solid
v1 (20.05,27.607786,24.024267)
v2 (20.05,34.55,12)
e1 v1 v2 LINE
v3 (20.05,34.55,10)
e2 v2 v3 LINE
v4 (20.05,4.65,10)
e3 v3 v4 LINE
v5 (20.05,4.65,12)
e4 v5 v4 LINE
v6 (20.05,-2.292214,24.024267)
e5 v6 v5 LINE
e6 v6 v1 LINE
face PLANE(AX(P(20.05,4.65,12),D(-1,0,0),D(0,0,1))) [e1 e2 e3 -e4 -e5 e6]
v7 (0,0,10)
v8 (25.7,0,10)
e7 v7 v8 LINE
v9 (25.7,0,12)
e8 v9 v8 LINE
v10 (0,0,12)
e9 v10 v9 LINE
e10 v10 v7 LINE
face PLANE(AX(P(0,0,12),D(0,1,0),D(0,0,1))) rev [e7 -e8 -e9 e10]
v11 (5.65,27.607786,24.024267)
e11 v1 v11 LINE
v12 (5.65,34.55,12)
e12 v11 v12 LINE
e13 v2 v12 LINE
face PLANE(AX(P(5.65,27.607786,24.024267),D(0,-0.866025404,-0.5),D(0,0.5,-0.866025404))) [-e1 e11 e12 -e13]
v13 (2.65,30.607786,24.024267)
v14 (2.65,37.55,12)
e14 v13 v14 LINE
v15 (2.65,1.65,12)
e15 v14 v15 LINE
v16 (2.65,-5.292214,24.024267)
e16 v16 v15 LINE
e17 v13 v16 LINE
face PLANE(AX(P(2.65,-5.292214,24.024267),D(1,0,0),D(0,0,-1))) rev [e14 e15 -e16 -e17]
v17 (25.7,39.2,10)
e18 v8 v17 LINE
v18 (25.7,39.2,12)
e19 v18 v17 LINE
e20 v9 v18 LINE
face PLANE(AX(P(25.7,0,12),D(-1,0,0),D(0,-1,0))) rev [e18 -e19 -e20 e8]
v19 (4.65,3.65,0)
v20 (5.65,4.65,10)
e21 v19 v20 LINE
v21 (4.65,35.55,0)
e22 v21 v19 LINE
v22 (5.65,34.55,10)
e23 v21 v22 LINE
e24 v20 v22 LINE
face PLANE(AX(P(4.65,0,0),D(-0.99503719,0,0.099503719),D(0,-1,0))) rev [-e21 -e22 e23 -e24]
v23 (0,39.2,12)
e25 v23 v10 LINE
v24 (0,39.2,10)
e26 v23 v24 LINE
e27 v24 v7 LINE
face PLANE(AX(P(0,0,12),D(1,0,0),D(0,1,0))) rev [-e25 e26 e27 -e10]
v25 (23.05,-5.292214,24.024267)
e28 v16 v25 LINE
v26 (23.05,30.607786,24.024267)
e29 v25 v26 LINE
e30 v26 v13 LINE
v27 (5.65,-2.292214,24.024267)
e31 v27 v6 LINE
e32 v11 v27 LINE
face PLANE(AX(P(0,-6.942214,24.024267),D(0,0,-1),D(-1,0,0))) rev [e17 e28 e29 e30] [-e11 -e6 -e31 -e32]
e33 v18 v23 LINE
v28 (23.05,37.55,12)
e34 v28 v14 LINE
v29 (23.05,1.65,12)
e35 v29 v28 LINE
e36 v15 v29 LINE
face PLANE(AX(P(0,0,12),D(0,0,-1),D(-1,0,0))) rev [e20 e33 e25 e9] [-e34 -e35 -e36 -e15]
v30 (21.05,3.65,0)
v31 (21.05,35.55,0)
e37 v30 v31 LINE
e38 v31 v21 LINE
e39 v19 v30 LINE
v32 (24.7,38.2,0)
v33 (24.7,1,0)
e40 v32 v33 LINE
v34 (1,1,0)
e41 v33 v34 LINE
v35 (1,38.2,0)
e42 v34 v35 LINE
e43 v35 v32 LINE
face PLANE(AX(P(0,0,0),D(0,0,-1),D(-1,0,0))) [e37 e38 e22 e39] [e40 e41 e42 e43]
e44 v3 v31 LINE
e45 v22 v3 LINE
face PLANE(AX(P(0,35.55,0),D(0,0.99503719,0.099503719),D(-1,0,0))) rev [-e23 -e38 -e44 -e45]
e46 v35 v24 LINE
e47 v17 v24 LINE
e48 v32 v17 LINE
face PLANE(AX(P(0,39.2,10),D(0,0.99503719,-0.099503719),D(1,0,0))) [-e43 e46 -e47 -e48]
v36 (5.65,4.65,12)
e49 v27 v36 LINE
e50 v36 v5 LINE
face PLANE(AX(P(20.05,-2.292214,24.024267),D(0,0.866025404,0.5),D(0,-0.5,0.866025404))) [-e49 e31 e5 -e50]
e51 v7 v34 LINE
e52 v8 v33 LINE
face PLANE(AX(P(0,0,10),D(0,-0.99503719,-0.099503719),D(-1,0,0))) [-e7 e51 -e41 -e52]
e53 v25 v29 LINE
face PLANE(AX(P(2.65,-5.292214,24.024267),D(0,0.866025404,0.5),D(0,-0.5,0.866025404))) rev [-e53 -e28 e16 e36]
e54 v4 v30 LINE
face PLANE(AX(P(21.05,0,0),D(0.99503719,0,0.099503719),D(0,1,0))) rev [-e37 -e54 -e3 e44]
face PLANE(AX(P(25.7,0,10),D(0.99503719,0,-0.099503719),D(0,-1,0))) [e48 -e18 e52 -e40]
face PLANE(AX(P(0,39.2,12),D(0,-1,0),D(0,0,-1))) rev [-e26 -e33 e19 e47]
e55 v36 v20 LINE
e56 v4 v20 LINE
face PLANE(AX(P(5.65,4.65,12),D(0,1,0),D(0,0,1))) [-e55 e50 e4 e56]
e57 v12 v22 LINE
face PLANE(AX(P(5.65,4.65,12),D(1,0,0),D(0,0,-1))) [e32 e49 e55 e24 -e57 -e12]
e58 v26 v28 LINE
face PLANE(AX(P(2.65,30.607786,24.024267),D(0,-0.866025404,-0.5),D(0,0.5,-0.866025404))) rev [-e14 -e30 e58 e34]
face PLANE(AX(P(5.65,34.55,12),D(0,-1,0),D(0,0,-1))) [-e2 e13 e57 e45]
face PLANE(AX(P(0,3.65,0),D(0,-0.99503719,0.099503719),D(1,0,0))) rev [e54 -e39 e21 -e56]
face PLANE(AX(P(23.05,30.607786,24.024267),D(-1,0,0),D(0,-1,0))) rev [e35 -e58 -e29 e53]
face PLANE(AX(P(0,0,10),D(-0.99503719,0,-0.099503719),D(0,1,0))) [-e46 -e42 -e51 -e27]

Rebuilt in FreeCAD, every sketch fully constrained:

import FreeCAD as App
import Part
import Sketcher

V = App.Vector


def edges_at(feature, points):
    """Names of the edges that pass closest to the given points."""
    edges = feature.Shape.Edges
    near = lambda p: min(range(len(edges)), key=lambda i: edges[i].distToShape(Part.Vertex(*p))[0])
    return sorted({f"Edge{near(p) + 1}" for p in points})

doc = App.newDocument("Part")
body = doc.addObject("PartDesign::Body", "Body")

sketch1 = doc.addObject("Sketcher::SketchObject", "Sketch")
body.addObject(sketch1)
sketch1.AttachmentSupport = (doc.XY_Plane, [""])
sketch1.MapMode = "FlatFace"
sketch1.addGeometry([
    Part.LineSegment(V(0, 39, 0), V(0, 0, 0)),
    Part.LineSegment(V(0, 0, 0), V(26, 0, 0)),
    Part.LineSegment(V(26, 0, 0), V(26, 39, 0)),
    Part.LineSegment(V(26, 39, 0), V(0, 39, 0)),
    Part.LineSegment(V(20, 5, 0), V(6, 5, 0)),
    Part.LineSegment(V(6, 5, 0), V(6, 35, 0)),
    Part.LineSegment(V(6, 35, 0), V(20, 35, 0)),
    Part.LineSegment(V(20, 35, 0), V(20, 5, 0)),
], False)
sketch1.addConstraint([
    Sketcher.Constraint("Coincident", 0, 2, 1, 1),
    Sketcher.Constraint("Coincident", 1, 2, 2, 1),
    Sketcher.Constraint("Coincident", 2, 2, 3, 1),
    Sketcher.Constraint("Coincident", 3, 2, 0, 1),
    Sketcher.Constraint("Coincident", 4, 2, 5, 1),
    Sketcher.Constraint("Coincident", 5, 2, 6, 1),
    Sketcher.Constraint("Coincident", 6, 2, 7, 1),
    Sketcher.Constraint("Coincident", 7, 2, 4, 1),
    Sketcher.Constraint("Vertical", 0),
    Sketcher.Constraint("Horizontal", 1),
    Sketcher.Constraint("Vertical", 2),
    Sketcher.Constraint("Horizontal", 3),
    Sketcher.Constraint("Horizontal", 4),
    Sketcher.Constraint("Vertical", 5),
    Sketcher.Constraint("Horizontal", 6),
    Sketcher.Constraint("Vertical", 7),
    Sketcher.Constraint("Coincident", 0, 2, -1, 1),
    Sketcher.Constraint("DistanceX", 1, 1, 1, 2, 25.7),
    Sketcher.Constraint("DistanceX", 4, 2, 4, 1, 14.4),
    Sketcher.Constraint("DistanceY", 0, 2, 0, 1, 39.2),
    Sketcher.Constraint("DistanceY", 5, 1, 5, 2, 29.9),
    Sketcher.Constraint("DistanceX", -1, 1, 4, 2, 5.65),
    Sketcher.Constraint("DistanceY", -1, 1, 4, 2, 4.65),
])
pad1 = doc.addObject("PartDesign::Pad", "Pad")
body.addObject(pad1)
pad1.Profile = sketch1
pad1.Length = 12
doc.recompute()

chamfer = doc.addObject("PartDesign::Chamfer", "Chamfer")
body.addObject(chamfer)
chamfer.Base = (pad1, edges_at(pad1, [
    (5.65, 19.6, 0),
    (12.85, 4.65, 0),
    (20.05, 19.6, 0),
    (12.85, 34.55, 0),
    (12.85, 39.2, 0),
    (25.7, 19.6, 0),
    (12.85, 0, 0),
    (0, 19.6, 0),
]))
chamfer.ChamferType = "Two distances"
chamfer.Size = 1
chamfer.Size2 = 10
chamfer.FlipDirection = True

sketch2 = doc.addObject("Sketcher::SketchObject", "Sketch001")
body.addObject(sketch2)
sketch2.AttachmentSupport = (doc.XY_Plane, [""])
sketch2.MapMode = "FlatFace"
sketch2.AttachmentOffset = App.Placement(V(0, 0, 12), App.Rotation())
sketch2.addGeometry([
    Part.LineSegment(V(3, 38, 0), V(3, 2, 0)),
    Part.LineSegment(V(3, 2, 0), V(23, 2, 0)),
    Part.LineSegment(V(23, 2, 0), V(23, 38, 0)),
    Part.LineSegment(V(23, 38, 0), V(3, 38, 0)),
    Part.LineSegment(V(20, 5, 0), V(6, 5, 0)),
    Part.LineSegment(V(6, 5, 0), V(6, 35, 0)),
    Part.LineSegment(V(6, 35, 0), V(20, 35, 0)),
    Part.LineSegment(V(20, 35, 0), V(20, 5, 0)),
], False)
sketch2.addConstraint([
    Sketcher.Constraint("Coincident", 0, 2, 1, 1),
    Sketcher.Constraint("Coincident", 1, 2, 2, 1),
    Sketcher.Constraint("Coincident", 2, 2, 3, 1),
    Sketcher.Constraint("Coincident", 3, 2, 0, 1),
    Sketcher.Constraint("Coincident", 4, 2, 5, 1),
    Sketcher.Constraint("Coincident", 5, 2, 6, 1),
    Sketcher.Constraint("Coincident", 6, 2, 7, 1),
    Sketcher.Constraint("Coincident", 7, 2, 4, 1),
    Sketcher.Constraint("Vertical", 0),
    Sketcher.Constraint("Horizontal", 1),
    Sketcher.Constraint("Vertical", 2),
    Sketcher.Constraint("Horizontal", 3),
    Sketcher.Constraint("Horizontal", 4),
    Sketcher.Constraint("Vertical", 5),
    Sketcher.Constraint("Horizontal", 6),
    Sketcher.Constraint("Vertical", 7),
    Sketcher.Constraint("DistanceX", 1, 1, 1, 2, 20.4),
    Sketcher.Constraint("DistanceX", 4, 2, 4, 1, 14.4),
    Sketcher.Constraint("DistanceY", 0, 2, 0, 1, 35.9),
    Sketcher.Constraint("DistanceY", 5, 1, 5, 2, 29.9),
    Sketcher.Constraint("DistanceX", 0, 2, 4, 2, 3.0),
    Sketcher.Constraint("DistanceY", 0, 2, 4, 2, 3.0),
    Sketcher.Constraint("DistanceX", -1, 1, 0, 2, 2.65),
    Sketcher.Constraint("DistanceY", -1, 1, 0, 2, 1.65),
])

sketch3 = doc.addObject("Sketcher::SketchObject", "Sketch002")
body.addObject(sketch3)
sketch3.Placement = App.Placement(V(0, 6.433652, 3.714471), App.Rotation(V(0, 0.5, -0.866025404), V(1, 0, 0), V(0, -0.866025404, -0.5), "ZXY"))
sketch3.addGeometry(Part.LineSegment(V(-10, 13, 0), V(-23, 13, 0)), False)
sketch3.addConstraint([
    Sketcher.Constraint("Horizontal", 0),
    Sketcher.Constraint("DistanceY", -1, 1, 0, 1, 12.85),
    Sketcher.Constraint("DistanceX", 0, 2, 0, 1, 13.884427),
    Sketcher.Constraint("DistanceX", 0, 1, -1, 1, 9.567305),
])
doc.recompute()

additivepipe = doc.addObject("PartDesign::AdditivePipe", "AdditivePipe")
body.addObject(additivepipe)
additivepipe.Profile = sketch2
additivepipe.Spine = (sketch3, ["Edge1"])

doc.recompute()
